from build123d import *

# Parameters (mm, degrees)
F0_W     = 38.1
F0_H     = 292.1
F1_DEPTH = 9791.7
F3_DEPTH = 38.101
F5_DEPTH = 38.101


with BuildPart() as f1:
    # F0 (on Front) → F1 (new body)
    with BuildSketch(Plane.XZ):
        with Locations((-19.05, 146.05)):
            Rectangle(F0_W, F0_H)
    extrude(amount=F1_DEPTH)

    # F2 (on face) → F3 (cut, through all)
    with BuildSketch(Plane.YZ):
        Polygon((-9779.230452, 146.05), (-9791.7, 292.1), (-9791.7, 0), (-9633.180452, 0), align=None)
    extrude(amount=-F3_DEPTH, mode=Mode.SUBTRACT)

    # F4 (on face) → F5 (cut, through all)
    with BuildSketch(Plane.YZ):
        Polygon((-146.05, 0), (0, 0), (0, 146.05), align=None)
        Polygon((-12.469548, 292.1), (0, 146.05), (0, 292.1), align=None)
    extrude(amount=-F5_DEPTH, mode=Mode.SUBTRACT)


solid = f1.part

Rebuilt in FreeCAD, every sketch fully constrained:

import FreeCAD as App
import Part
import Sketcher

V = App.Vector
Q = App.Units.Quantity

doc = App.newDocument("Part")
body = doc.addObject("PartDesign::Body", "Body")

# Sketch on XZ plane
sketch1 = doc.addObject("Sketcher::SketchObject", "Sketch")
body.addObject(sketch1)
sketch1.AttachmentSupport = (doc.XZ_Plane, [""])
sketch1.MapMode = "FlatFace"
sketch1.addGeometry([
    Part.LineSegment(V(-38, 292, 0), V(-38, 0, 0)),
    Part.LineSegment(V(-38, 0, 0), V(0, 0, 0)),
    Part.LineSegment(V(0, 0, 0), V(0, 292, 0)),
    Part.LineSegment(V(0, 292, 0), V(-38, 292, 0)),
], False)
sketch1.addConstraint([
    Sketcher.Constraint("Coincident", 0, 2, 1, 1),
    Sketcher.Constraint("Coincident", 1, 2, 2, 1),
    Sketcher.Constraint("Coincident", 2, 2, 3, 1),
    Sketcher.Constraint("Coincident", 3, 2, 0, 1),
    Sketcher.Constraint("Vertical", 0),
    Sketcher.Constraint("Horizontal", 1),
    Sketcher.Constraint("Vertical", 2),
    Sketcher.Constraint("Horizontal", 3),
    Sketcher.Constraint("Coincident", 1, 2, -1, 1),
    Sketcher.Constraint("DistanceX", 1, 1, 1, 2, Q("1.5 in")),
    Sketcher.Constraint("DistanceY", 0, 2, 0, 1, Q("11.5 in")),
])
pad1 = doc.addObject("PartDesign::Pad", "Pad")
body.addObject(pad1)
pad1.Profile = sketch1
pad1.Length = Q("385.5 in")

# Sketch on YZ plane
sketch2 = doc.addObject("Sketcher::SketchObject", "Sketch001")
body.addObject(sketch2)
sketch2.AttachmentSupport = (doc.YZ_Plane, [""])
sketch2.MapMode = "FlatFace"
sketch2.addGeometry([
    Part.LineSegment(V(-9779, 146, 0), V(-9792, 292, 0)),
    Part.LineSegment(V(-9792, 292, 0), V(-9792, 0, 0)),
    Part.LineSegment(V(-9792, 0, 0), V(-9633, 0, 0)),
    Part.LineSegment(V(-9633, 0, 0), V(-9779, 146, 0)),
], False)
sketch2.addConstraint([
    Sketcher.Constraint("Coincident", 0, 2, 1, 1),
    Sketcher.Constraint("Coincident", 1, 2, 2, 1),
    Sketcher.Constraint("Coincident", 2, 2, 3, 1),
    Sketcher.Constraint("Coincident", 3, 2, 0, 1),
    Sketcher.Constraint("Vertical", 1),
    Sketcher.Constraint("Horizontal", 2),
    Sketcher.Constraint("PointOnObject", 1, 2, -1),
    Sketcher.Constraint("DistanceY", 1, 2, 1, 1, Q("11.5 in")),
    Sketcher.Constraint("Angle", 3, Q("135 deg")),
    Sketcher.Constraint("DistanceX", 0, 2, -1, 1, Q("385.5 in")),
    Sketcher.Constraint("DistanceY", -1, 1, 3, 2, Q("5.75 in")),
    Sketcher.Constraint("Angle", 0, Q("94.88 deg")),
])
pocket1 = doc.addObject("PartDesign::Pocket", "Pocket")
body.addObject(pocket1)
pocket1.Profile = sketch2
pocket1.Type = "ThroughAll"

# Sketch on YZ plane
sketch3 = doc.addObject("Sketcher::SketchObject", "Sketch002")
body.addObject(sketch3)
sketch3.AttachmentSupport = (doc.YZ_Plane, [""])
sketch3.MapMode = "FlatFace"
sketch3.addGeometry([
    Part.LineSegment(V(-146, 0, 0), V(0, 0, 0)),  # 0
    Part.LineSegment(V(0, 0, 0), V(0, 146, 0)),  # 1
    Part.LineSegment(V(0, 146, 0), V(-146, 0, 0)),  # 2
    Part.LineSegment(V(-12, 292, 0), V(0, 146, 0)),  # 3
    Part.LineSegment(V(0, 146, 0), V(0, 292, 0)),  # 4
    Part.LineSegment(V(0, 292, 0), V(-12, 292, 0)),  # 5
], False)
sketch3.addConstraint([
    Sketcher.Constraint("Coincident", 0, 2, 1, 1),
    Sketcher.Constraint("Coincident", 1, 2, 2, 1),
    Sketcher.Constraint("Coincident", 2, 2, 0, 1),
    Sketcher.Constraint("Coincident", 3, 2, 4, 1),
    Sketcher.Constraint("Coincident", 4, 2, 5, 1),
    Sketcher.Constraint("Coincident", 5, 2, 3, 1),
    Sketcher.Constraint("Horizontal", 0),
    Sketcher.Constraint("Vertical", 1),
    Sketcher.Constraint("Vertical", 4),
    Sketcher.Constraint("Horizontal", 5),
    Sketcher.Constraint("Coincident", 0, 2, -1, 1),
    Sketcher.Constraint("Coincident", 3, 2, 1, 2),
    Sketcher.Constraint("Equal", 0, 1),
    Sketcher.Constraint("Equal", 1, 4),
    Sketcher.Constraint("DistanceX", 0, 1, 0, 2, Q("5.75 in")),
    Sketcher.Constraint("Angle", 3, Q("-85.12 deg")),
])
pocket2 = doc.addObject("PartDesign::Pocket", "Pocket001")
body.addObject(pocket2)
pocket2.Profile = sketch3
pocket2.Type = "ThroughAll"

doc.recompute()
